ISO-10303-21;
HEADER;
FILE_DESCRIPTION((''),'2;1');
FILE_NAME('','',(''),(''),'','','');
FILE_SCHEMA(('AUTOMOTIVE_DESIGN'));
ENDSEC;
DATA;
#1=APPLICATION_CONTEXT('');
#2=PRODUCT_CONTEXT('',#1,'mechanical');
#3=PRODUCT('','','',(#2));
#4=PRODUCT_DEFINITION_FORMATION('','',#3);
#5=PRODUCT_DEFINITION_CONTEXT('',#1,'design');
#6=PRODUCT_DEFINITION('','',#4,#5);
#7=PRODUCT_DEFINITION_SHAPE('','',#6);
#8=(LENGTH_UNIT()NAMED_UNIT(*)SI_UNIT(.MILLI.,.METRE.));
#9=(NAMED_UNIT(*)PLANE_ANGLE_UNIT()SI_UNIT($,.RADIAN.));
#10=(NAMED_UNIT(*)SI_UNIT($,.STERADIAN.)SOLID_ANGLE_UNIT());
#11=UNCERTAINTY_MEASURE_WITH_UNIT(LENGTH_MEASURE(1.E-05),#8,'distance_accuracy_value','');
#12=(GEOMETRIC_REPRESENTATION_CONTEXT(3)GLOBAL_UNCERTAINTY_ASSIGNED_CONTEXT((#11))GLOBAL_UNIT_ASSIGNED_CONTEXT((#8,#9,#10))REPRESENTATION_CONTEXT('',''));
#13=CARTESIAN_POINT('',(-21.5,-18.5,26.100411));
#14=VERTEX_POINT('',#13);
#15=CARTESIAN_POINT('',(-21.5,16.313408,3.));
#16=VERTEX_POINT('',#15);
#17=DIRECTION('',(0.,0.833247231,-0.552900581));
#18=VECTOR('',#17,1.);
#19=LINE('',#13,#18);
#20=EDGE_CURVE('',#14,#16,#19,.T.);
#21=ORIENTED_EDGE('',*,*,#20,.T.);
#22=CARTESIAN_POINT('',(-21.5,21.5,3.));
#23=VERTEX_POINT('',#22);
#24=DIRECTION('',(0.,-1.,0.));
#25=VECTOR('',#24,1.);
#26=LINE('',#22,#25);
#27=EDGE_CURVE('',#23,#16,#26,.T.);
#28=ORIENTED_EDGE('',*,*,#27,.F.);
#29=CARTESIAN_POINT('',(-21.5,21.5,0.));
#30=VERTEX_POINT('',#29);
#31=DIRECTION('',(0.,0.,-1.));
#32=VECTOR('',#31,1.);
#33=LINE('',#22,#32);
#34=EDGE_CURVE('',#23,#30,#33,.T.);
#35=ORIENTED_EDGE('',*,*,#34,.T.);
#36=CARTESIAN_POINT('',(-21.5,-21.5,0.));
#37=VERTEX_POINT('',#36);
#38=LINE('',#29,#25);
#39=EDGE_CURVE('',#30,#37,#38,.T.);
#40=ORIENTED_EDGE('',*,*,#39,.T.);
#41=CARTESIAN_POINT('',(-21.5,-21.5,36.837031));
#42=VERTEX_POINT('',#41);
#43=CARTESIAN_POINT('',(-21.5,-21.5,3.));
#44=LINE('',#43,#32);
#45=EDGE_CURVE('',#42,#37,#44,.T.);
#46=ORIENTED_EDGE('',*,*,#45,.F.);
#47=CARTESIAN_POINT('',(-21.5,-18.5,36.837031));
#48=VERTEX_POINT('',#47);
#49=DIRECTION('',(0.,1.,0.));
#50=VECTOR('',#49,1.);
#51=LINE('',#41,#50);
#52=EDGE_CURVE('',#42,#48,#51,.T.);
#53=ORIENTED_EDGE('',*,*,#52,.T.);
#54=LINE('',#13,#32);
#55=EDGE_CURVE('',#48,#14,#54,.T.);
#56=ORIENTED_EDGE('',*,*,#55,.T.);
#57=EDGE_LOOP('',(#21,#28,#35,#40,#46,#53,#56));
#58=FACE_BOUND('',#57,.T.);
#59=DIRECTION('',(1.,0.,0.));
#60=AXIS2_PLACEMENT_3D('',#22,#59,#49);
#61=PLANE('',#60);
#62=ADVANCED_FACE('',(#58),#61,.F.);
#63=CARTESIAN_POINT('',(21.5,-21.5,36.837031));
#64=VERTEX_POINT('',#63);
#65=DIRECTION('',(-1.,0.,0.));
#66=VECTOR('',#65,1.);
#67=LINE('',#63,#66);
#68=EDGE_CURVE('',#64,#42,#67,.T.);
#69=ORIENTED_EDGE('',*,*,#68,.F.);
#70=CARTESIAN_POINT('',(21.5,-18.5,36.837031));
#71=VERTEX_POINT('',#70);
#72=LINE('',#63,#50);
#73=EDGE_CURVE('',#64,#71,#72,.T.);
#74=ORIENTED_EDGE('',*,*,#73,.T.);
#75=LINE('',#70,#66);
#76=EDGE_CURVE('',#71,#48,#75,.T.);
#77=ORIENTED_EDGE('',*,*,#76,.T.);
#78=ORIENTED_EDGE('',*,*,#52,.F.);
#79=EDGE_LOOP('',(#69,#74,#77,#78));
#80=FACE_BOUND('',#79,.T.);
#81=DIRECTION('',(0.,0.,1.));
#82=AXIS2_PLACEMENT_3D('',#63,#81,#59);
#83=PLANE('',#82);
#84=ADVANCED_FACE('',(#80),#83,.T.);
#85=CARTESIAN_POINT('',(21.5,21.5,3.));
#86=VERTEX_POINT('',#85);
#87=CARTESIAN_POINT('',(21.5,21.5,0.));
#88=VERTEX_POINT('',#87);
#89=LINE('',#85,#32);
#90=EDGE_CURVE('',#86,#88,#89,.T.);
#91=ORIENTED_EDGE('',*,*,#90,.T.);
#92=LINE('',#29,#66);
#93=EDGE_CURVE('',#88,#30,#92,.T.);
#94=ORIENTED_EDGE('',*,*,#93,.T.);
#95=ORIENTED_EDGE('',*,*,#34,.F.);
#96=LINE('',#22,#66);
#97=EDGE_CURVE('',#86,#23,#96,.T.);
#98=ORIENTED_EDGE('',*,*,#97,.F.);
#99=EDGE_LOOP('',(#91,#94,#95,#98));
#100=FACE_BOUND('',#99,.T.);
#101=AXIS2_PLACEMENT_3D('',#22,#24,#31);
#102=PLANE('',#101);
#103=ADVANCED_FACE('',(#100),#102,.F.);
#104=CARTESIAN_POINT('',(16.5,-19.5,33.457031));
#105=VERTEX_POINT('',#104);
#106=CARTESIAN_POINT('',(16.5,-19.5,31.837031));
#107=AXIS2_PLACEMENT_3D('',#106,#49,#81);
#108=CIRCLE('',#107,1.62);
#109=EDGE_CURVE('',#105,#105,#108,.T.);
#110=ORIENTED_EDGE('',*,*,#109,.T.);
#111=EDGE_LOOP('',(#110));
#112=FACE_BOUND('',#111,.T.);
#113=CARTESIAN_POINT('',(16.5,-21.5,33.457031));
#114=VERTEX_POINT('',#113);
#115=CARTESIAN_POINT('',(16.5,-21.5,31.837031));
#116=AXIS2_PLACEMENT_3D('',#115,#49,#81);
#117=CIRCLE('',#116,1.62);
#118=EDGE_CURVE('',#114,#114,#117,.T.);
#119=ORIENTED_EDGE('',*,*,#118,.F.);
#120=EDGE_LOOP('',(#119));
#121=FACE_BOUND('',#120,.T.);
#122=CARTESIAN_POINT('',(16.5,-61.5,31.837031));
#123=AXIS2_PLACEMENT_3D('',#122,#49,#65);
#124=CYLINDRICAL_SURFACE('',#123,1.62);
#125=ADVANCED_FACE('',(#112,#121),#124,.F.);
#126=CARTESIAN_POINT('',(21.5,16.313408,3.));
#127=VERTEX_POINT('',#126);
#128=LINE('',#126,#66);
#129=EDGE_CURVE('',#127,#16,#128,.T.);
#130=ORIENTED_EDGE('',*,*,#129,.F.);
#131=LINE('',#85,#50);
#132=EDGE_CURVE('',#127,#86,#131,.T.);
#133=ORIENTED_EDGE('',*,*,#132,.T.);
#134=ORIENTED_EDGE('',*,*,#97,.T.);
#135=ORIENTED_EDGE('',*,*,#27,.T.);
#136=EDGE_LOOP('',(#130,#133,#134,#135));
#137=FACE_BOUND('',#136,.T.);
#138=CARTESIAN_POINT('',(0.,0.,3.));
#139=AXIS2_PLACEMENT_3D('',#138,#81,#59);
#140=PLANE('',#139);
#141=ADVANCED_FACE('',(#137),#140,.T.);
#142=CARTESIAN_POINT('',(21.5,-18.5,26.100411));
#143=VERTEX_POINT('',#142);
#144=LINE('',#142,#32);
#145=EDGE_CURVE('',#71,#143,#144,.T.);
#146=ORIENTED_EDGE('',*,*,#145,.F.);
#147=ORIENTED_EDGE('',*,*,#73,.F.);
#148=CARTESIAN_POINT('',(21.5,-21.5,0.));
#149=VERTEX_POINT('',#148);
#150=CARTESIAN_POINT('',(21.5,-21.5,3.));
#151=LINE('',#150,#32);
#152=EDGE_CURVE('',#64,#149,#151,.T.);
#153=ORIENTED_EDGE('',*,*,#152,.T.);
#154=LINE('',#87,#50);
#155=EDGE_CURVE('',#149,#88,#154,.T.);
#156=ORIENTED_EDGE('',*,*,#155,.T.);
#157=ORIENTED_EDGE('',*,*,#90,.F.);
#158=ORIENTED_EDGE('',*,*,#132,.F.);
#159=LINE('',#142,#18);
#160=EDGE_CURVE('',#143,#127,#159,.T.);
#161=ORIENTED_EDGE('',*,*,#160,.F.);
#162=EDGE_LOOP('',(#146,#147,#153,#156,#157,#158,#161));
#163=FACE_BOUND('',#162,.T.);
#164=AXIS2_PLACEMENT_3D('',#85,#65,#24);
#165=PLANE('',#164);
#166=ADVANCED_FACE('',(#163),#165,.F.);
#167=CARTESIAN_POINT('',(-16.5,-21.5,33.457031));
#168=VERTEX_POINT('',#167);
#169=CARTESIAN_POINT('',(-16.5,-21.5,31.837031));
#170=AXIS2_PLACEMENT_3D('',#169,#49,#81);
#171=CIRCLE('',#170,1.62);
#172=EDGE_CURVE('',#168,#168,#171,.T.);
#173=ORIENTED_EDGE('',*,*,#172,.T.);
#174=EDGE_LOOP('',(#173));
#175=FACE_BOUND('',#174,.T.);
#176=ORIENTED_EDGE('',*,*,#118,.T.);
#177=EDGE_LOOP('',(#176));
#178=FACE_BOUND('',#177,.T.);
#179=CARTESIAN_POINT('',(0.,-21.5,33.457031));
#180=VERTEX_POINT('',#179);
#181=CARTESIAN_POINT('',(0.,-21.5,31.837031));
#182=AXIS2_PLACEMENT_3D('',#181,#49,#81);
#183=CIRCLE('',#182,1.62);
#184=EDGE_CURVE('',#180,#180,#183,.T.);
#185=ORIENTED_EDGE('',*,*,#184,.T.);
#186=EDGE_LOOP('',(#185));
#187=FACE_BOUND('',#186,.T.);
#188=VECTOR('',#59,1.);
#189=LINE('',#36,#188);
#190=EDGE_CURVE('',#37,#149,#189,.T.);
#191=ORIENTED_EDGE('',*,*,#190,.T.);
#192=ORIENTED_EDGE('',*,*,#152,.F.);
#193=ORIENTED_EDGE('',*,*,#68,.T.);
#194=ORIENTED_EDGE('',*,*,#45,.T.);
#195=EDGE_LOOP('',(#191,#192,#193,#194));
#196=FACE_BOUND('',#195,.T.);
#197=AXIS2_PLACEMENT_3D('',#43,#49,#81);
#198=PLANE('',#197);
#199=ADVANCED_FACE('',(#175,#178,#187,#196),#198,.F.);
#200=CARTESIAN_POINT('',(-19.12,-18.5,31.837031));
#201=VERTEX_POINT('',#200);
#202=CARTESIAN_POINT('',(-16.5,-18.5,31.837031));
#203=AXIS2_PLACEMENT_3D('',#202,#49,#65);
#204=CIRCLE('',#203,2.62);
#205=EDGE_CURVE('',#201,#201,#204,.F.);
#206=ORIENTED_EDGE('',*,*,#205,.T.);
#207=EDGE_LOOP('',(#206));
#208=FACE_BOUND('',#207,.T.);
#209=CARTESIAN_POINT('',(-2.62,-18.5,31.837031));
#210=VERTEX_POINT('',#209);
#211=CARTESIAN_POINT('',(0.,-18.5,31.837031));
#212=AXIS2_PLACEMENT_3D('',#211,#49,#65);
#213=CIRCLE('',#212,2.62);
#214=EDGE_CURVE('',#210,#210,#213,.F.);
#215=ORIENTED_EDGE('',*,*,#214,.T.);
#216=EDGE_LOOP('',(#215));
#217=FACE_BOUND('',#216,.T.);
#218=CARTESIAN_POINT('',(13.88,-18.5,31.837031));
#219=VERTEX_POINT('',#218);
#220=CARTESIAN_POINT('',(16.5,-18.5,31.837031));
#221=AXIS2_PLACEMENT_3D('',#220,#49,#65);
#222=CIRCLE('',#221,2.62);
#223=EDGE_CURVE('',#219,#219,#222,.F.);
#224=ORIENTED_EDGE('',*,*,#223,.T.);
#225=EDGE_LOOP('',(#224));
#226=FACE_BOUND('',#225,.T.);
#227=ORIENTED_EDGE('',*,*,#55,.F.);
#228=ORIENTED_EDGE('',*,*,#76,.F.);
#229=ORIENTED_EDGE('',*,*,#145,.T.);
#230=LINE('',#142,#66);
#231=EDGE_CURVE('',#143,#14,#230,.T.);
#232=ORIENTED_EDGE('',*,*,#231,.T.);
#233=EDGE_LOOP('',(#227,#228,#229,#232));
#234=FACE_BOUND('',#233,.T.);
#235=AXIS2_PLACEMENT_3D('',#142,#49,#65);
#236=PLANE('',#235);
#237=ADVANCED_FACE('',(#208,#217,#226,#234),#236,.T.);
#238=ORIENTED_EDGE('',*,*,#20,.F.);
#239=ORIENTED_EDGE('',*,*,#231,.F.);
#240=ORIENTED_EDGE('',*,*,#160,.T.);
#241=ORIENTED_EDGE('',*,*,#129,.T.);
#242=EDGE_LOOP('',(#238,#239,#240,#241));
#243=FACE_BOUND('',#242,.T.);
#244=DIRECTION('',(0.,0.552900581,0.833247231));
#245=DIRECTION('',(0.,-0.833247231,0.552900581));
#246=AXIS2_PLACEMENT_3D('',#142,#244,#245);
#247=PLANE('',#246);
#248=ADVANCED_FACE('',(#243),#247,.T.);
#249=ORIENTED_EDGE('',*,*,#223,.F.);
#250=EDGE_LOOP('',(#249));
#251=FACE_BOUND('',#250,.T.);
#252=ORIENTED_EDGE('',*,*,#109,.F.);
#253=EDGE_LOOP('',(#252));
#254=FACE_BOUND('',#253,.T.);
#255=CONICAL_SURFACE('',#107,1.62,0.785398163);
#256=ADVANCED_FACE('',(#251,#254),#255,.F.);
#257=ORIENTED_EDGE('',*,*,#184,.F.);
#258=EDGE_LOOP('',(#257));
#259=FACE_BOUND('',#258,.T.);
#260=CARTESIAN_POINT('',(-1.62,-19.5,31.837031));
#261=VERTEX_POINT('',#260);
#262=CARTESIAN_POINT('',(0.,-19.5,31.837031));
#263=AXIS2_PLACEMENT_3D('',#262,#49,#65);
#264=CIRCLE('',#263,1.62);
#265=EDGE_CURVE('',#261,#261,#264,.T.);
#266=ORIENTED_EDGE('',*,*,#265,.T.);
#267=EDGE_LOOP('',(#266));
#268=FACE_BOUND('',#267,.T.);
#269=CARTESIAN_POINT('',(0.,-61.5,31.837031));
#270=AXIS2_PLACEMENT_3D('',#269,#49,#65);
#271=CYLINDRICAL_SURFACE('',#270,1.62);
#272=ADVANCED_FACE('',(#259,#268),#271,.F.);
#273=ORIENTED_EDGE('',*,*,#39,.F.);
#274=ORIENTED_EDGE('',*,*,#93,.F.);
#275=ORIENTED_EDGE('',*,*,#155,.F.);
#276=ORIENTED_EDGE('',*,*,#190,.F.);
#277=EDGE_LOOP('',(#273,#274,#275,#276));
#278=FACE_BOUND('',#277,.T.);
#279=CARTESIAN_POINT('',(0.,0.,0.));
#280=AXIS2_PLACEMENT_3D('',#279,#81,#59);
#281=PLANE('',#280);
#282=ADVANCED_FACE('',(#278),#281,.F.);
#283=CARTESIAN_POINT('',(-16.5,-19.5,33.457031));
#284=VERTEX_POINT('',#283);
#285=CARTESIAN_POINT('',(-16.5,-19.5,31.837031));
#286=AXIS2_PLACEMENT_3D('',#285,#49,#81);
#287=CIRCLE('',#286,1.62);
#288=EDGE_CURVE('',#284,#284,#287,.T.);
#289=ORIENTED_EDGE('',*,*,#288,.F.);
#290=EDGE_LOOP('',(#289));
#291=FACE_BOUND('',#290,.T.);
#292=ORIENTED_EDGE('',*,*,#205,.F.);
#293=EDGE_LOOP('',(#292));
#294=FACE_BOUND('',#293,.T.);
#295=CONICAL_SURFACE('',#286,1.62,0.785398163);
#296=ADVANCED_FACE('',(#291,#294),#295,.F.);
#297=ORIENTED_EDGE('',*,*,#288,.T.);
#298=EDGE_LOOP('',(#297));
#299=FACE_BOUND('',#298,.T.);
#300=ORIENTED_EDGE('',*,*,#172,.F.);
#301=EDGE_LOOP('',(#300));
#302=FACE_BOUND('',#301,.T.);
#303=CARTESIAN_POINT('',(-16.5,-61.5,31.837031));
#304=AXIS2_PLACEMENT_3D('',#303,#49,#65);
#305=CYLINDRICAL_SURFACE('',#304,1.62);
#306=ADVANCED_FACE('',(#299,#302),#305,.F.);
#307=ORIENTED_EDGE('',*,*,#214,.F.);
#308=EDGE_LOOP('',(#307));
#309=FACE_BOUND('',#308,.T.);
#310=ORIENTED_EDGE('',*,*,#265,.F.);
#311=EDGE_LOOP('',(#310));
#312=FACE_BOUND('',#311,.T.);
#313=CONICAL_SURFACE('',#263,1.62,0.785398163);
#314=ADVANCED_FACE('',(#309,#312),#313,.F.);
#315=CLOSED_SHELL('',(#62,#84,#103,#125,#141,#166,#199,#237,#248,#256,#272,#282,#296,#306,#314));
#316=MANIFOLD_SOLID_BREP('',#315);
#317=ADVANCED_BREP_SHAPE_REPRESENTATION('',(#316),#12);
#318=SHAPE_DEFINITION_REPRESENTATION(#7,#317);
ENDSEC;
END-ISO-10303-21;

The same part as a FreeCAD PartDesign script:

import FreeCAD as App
import Part
import Sketcher
Q = App.Units.Quantity


def edges_at(feature, points):
    """Names of the edges that pass closest to the given points."""
    edges = feature.Shape.Edges
    near = lambda p: min(range(len(edges)), key=lambda i: edges[i].distToShape(Part.Vertex(*p))[0])
    return sorted({f"Edge{near(p) + 1}" for p in points})

doc = App.newDocument("Part")
body = doc.addObject("PartDesign::Body", "Body")

sketch1 = body.newObject("Sketcher::SketchObject", "Sketch")
sketch1.AttachmentSupport = (doc.getObject("XY_Plane"), [""])
sketch1.MapMode = "FlatFace"
sketch1.addGeometry(Part.LineSegment(App.Vector(-22, 22, 0), App.Vector(-22, -22, 0)), False)
sketch1.addGeometry(Part.LineSegment(App.Vector(-22, -22, 0), App.Vector(22, -22, 0)), False)
sketch1.addGeometry(Part.LineSegment(App.Vector(22, -22, 0), App.Vector(22, 22, 0)), False)
sketch1.addGeometry(Part.LineSegment(App.Vector(22, 22, 0), App.Vector(-22, 22, 0)), False)
sketch1.addConstraint(Sketcher.Constraint("Coincident", 0, 2, 1, 1))
sketch1.addConstraint(Sketcher.Constraint("Coincident", 1, 2, 2, 1))
sketch1.addConstraint(Sketcher.Constraint("Coincident", 2, 2, 3, 1))
sketch1.addConstraint(Sketcher.Constraint("Coincident", 3, 2, 0, 1))
sketch1.addConstraint(Sketcher.Constraint("Vertical", 0))
sketch1.addConstraint(Sketcher.Constraint("Horizontal", 1))
sketch1.addConstraint(Sketcher.Constraint("Vertical", 2))
sketch1.addConstraint(Sketcher.Constraint("Horizontal", 3))
sketch1.addConstraint(Sketcher.Constraint("Symmetric", 0, 2, 2, 2, -1, 1))
sketch1.addConstraint(Sketcher.Constraint("Equal", 3, 0))
sketch1.addConstraint(Sketcher.Constraint("DistanceX", 1, 1, 1, 2, Q("43 mm")))
pad1 = body.newObject("PartDesign::Pad", "Pad")
pad1.Profile = sketch1
pad1.Length = 3

sketch2 = body.newObject("Sketcher::SketchObject", "Sketch001")
sketch2.AttachmentSupport = (doc.getObject("YZ_Plane"), [""])
sketch2.MapMode = "FlatFace"
sketch2.AttachmentOffset = App.Placement(App.Vector(0, 0, -21.5), App.Rotation())
sketch2.addGeometry(Part.LineSegment(App.Vector(-18.5, 26.1, 0), App.Vector(16.3, 3, 0)), False)
sketch2.addGeometry(Part.LineSegment(App.Vector(16.3, 3, 0), App.Vector(-21.5, 3, 0)), False)
sketch2.addGeometry(Part.LineSegment(App.Vector(-21.5, 3, 0), App.Vector(-21.5, 36.8, 0)), False)
sketch2.addGeometry(Part.LineSegment(App.Vector(-21.5, 36.8, 0), App.Vector(-18.5, 36.8, 0)), False)
sketch2.addGeometry(Part.LineSegment(App.Vector(-18.5, 36.8, 0), App.Vector(-18.5, 26.1, 0)), False)
sketch2.addConstraint(Sketcher.Constraint("Coincident", 0, 2, 1, 1))
sketch2.addConstraint(Sketcher.Constraint("Coincident", 1, 2, 2, 1))
sketch2.addConstraint(Sketcher.Constraint("Coincident", 2, 2, 3, 1))
sketch2.addConstraint(Sketcher.Constraint("Coincident", 3, 2, 4, 1))
sketch2.addConstraint(Sketcher.Constraint("Coincident", 4, 2, 0, 1))
sketch2.addConstraint(Sketcher.Constraint("Horizontal", 1))
sketch2.addConstraint(Sketcher.Constraint("Vertical", 2))
sketch2.addConstraint(Sketcher.Constraint("Horizontal", 3))
sketch2.addConstraint(Sketcher.Constraint("Vertical", 4))
sketch2.addConstraint(Sketcher.Constraint("DistanceX", 3, 1, 3, 2, Q("3 mm")))
sketch2.addConstraint(Sketcher.Constraint("DistanceY", -1, 1, 0, 2, Q("3 mm")))
sketch2.addConstraint(Sketcher.Constraint("DistanceX", 1, 2, -1, 1, Q("21.5 mm")))
sketch2.addConstraint(Sketcher.Constraint("DistanceX", 1, 2, 1, 1, Q("37.813408 mm")))
sketch2.addConstraint(Sketcher.Constraint("DistanceY", 2, 1, 2, 2, Q("33.837031 mm")))
sketch2.addConstraint(Sketcher.Constraint("DistanceY", 4, 2, 4, 1, Q("10.73662 mm")))
pad2 = body.newObject("PartDesign::Pad", "Pad001")
pad2.Profile = sketch2
pad2.Length = 43

sketch3 = body.newObject("Sketcher::SketchObject", "Sketch002")
sketch3.AttachmentSupport = (doc.getObject("XZ_Plane"), [""])
sketch3.MapMode = "FlatFace"
sketch3.AttachmentOffset = App.Placement(App.Vector(0, 0, 18.5), App.Rotation())
sketch3.addGeometry(Part.Circle(App.Vector(16.5, 31.8, 0), App.Vector(0, 0, 1), 1.6), False)
sketch3.addConstraint(Sketcher.Constraint("Diameter", 0, Q("3.24 mm")))
sketch3.addConstraint(Sketcher.Constraint("DistanceX", -1, 1, 0, 3, Q("16.5 mm")))
sketch3.addConstraint(Sketcher.Constraint("DistanceY", -1, 1, 0, 3, Q("31.837031 mm")))
pocket1 = body.newObject("PartDesign::Pocket", "Pocket")
pocket1.Profile = sketch3
pocket1.Length = 43
pocket1.Reversed = True
doc.recompute()

chamfer = body.newObject("PartDesign::Chamfer", "Chamfer")
chamfer.Base = (pocket1, edges_at(pocket1, [(18.12, -18.5, 31.837)]))
chamfer.Size = 1

sketch4 = body.newObject("Sketcher::SketchObject", "Sketch003")
sketch4.AttachmentSupport = (doc.getObject("XZ_Plane"), [""])
sketch4.MapMode = "FlatFace"
sketch4.AttachmentOffset = App.Placement(App.Vector(0, 0, 18.5), App.Rotation())
sketch4.addGeometry(Part.Circle(App.Vector(0, 31.8, 0), App.Vector(0, 0, 1), 1.6), False)
sketch4.addConstraint(Sketcher.Constraint("PointOnObject", 0, 3, -2))
sketch4.addConstraint(Sketcher.Constraint("Diameter", 0, Q("3.24 mm")))
sketch4.addConstraint(Sketcher.Constraint("DistanceY", -1, 1, 0, 3, Q("31.837031 mm")))
pocket2 = body.newObject("PartDesign::Pocket", "Pocket001")
pocket2.Profile = sketch4
pocket2.Length = 43
pocket2.Reversed = True

sketch5 = body.newObject("Sketcher::SketchObject", "Sketch004")
sketch5.AttachmentSupport = (doc.getObject("XZ_Plane"), [""])
sketch5.MapMode = "FlatFace"
sketch5.AttachmentOffset = App.Placement(App.Vector(0, 0, 18.5), App.Rotation())
sketch5.addGeometry(Part.Circle(App.Vector(-16.5, 31.8, 0), App.Vector(0, 0, 1), 1.6), False)
sketch5.addConstraint(Sketcher.Constraint("Diameter", 0, Q("3.24 mm")))
sketch5.addConstraint(Sketcher.Constraint("DistanceX", 0, 3, -1, 1, Q("16.5 mm")))
sketch5.addConstraint(Sketcher.Constraint("DistanceY", -1, 1, 0, 3, Q("31.837031 mm")))
pocket3 = body.newObject("PartDesign::Pocket", "Pocket002")
pocket3.Profile = sketch5
pocket3.Length = 43
pocket3.Reversed = True
doc.recompute()

chamfer2 = body.newObject("PartDesign::Chamfer", "Chamfer001")
chamfer2.Base = (pocket3, edges_at(pocket3, [(1.62, -18.5, 31.837)]))
chamfer2.Size = 1
doc.recompute()

chamfer3 = body.newObject("PartDesign::Chamfer", "Chamfer002")
chamfer3.Base = (chamfer2, edges_at(chamfer2, [(-14.88, -18.5, 31.837)]))
chamfer3.Size = 1

doc.recompute()
